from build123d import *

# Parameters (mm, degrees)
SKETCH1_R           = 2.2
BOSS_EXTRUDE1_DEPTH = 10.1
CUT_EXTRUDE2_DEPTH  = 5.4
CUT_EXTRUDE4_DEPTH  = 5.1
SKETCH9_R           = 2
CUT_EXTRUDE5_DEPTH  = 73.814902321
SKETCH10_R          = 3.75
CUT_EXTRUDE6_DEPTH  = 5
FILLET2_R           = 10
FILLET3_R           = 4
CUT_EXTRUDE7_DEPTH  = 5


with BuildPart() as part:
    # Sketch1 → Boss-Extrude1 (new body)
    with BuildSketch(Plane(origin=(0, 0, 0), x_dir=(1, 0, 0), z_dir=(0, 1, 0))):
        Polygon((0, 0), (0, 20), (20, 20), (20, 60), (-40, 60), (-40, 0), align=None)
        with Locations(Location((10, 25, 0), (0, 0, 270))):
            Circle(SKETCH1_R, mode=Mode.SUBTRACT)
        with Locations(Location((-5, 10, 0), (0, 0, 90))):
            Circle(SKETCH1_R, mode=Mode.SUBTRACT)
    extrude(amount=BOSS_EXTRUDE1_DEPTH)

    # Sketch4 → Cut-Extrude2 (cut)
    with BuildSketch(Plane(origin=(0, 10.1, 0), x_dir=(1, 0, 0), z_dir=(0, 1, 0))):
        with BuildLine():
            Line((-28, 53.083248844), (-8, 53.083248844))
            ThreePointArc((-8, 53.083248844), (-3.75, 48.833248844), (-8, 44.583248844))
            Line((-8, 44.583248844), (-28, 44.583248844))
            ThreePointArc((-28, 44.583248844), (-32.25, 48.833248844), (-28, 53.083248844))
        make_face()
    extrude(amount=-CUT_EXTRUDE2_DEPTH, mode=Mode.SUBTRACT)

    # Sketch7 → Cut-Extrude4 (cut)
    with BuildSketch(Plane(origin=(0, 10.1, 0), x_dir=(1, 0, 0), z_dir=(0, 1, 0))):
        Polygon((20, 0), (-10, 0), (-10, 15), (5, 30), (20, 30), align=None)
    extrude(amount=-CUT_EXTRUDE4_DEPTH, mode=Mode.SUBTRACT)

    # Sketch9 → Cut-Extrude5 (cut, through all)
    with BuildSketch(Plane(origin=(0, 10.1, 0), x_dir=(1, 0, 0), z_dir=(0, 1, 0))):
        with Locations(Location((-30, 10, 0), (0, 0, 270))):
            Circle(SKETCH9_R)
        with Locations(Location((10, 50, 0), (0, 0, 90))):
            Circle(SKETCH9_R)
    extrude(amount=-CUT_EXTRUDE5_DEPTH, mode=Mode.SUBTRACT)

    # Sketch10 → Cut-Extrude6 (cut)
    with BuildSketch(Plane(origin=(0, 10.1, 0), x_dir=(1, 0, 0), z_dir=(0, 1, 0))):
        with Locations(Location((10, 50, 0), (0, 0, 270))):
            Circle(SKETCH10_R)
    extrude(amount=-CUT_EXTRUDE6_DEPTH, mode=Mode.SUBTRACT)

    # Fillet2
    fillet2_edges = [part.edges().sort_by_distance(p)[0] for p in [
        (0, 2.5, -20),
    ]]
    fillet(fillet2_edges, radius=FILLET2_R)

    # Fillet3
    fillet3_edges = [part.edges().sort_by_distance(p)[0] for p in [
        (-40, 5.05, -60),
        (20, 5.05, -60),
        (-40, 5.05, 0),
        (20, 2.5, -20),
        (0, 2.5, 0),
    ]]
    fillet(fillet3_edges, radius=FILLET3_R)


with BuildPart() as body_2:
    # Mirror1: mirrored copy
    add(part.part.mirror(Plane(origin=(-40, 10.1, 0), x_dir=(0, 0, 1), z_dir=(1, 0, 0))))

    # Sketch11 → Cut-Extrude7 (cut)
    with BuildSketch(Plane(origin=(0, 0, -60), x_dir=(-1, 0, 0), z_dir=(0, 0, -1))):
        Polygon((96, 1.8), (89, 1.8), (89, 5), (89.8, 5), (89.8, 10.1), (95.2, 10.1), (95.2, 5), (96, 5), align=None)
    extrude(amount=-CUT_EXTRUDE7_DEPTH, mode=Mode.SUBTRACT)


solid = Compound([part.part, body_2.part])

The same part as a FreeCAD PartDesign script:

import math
import FreeCAD as App
import Part
import Sketcher
from FreeCAD import Vector
Q = App.Units.Quantity


def edges_at(feature, points):
    """Names of the edges that pass closest to the given points."""
    edges = feature.Shape.Edges
    near = lambda p: min(range(len(edges)), key=lambda i: edges[i].distToShape(Part.Vertex(*p))[0])
    return sorted({f"Edge{near(p) + 1}" for p in points})


def add_polygon(sketch, points):
    """Adds a closed chain of lines whose ends are joined by coincident constraints."""
    first, n = sketch.GeometryCount, len(points)
    for a, b in zip(points, points[1:] + points[:1]):
        sketch.addGeometry(Part.LineSegment(App.Vector(*a, 0), App.Vector(*b, 0)), False)
    for i in range(n):
        sketch.addConstraint(Sketcher.Constraint("Coincident", first + i, 2, first + (i + 1) % n, 1))

doc = App.newDocument("Part")
params = doc.addObject("Spreadsheet::Sheet", "Params")
for row, (alias, value) in enumerate([
    ("sketch1_diameter", "4.4 mm"),
    ("sketch1_width", "20 mm"),
    ("sketch1_width2", "60 mm"),
    ("pad1_length", "10.1 mm"),
    ("sketch2_width", "20 mm"),
    ("sketch2_radius", "4.25 mm"),
    ("pocket1_length", "5.4 mm"),
    ("sketch3_width", "30 mm"),
    ("sketch3_width2", "15 mm"),
    ("pocket2_length", "5.1 mm"),
    ("sketch4_diameter", "4 mm"),
    ("sketch5_diameter", "7.5 mm"),
    ("pocket4_length", "5 mm"),
    ("fillet_radius", "10 mm"),
    ("fillet2_radius", "4 mm"),
    ("sketch6_width", "7 mm"),
    ("sketch6_width2", "0.8 mm"),
    ("sketch6_height", "3.2 mm"),
    ("sketch6_height2", "5.1 mm"),
    ("pocket5_length", "5 mm"),
], start=1):
    params.set(f"A{row}", alias)
    params.set(f"B{row}", "=" + value)
    params.setAlias(f"B{row}", alias)

body = doc.addObject("PartDesign::Body", "Body")

# Sketch on XZ plane
sketch1 = body.newObject("Sketcher::SketchObject", "Sketch")
sketch1.AttachmentSupport = (doc.getObject("XZ_Plane"), [""])
sketch1.MapMode = "FlatFace"
add_polygon(sketch1, [(0, 0), (0, -20), (20, -20), (20, -60), (-40, -60), (-40, 0)])  # lines 0-5
sketch1.addGeometry(Part.Circle(Vector(-5, -10, 0), Vector(0, 0, 1), 2.2), False)  # 6
sketch1.addGeometry(Part.Circle(Vector(10, -25, 0), Vector(0, 0, 1), 2.2), False)  # 7
sketch1.addConstraint([
    Sketcher.Constraint("Vertical", 0),
    Sketcher.Constraint("Horizontal", 1),
    Sketcher.Constraint("Vertical", 2),
    Sketcher.Constraint("Horizontal", 3),
    Sketcher.Constraint("Vertical", 4),
    Sketcher.Constraint("Horizontal", 5),
    Sketcher.Constraint("Coincident", 5, 2, -1, 1),
    Sketcher.Constraint("Equal", 6, 7),
    Sketcher.Constraint("Equal", 1, 0),
    Sketcher.Constraint("Equal", 5, 2),
    Sketcher.Constraint("Diameter", 6, Q("4.4 mm")),
    Sketcher.Constraint("DistanceX", 1, 1, 1, 2, Q("20 mm")),
    Sketcher.Constraint("DistanceX", 3, 2, 3, 1, Q("60 mm")),
    Sketcher.Constraint("DistanceX", 6, 3, -1, 1, Q("5 mm")),
    Sketcher.Constraint("DistanceY", 6, 3, -1, 1, Q("10 mm")),
    Sketcher.Constraint("DistanceX", -1, 1, 7, 3, Q("10 mm")),
    Sketcher.Constraint("DistanceY", 7, 3, -1, 1, Q("25 mm")),
])
sketch1.setExpression("Constraints[16]", "Params.sketch1_diameter")
sketch1.setExpression("Constraints[17]", "Params.sketch1_width")
sketch1.setExpression("Constraints[18]", "Params.sketch1_width2")
pad1 = body.newObject("PartDesign::Pad", "Pad")
pad1.Profile = sketch1
pad1.setExpression("Length", "Params.pad1_length")
pad1.Reversed = True

# Sketch on XZ plane
sketch2 = body.newObject("Sketcher::SketchObject", "Sketch001")
sketch2.AttachmentSupport = (doc.getObject("XZ_Plane"), [""])
sketch2.MapMode = "FlatFace"
sketch2.AttachmentOffset = App.Placement(Vector(0, 0, -10.1), App.Rotation())
sketch2.addGeometry([
    Part.LineSegment(Vector(-8, -53.1, 0), Vector(-28, -53.1, 0)),
    Part.ArcOfCircle(Part.Circle(Vector(-28, -48.8, 0), Vector(0, 0, 1), 4.2), math.radians(90), math.radians(270)),
    Part.LineSegment(Vector(-28, -44.6, 0), Vector(-8, -44.6, 0)),
    Part.ArcOfCircle(Part.Circle(Vector(-8, -48.8, 0), Vector(0, 0, 1), 4.2), math.radians(-90), math.radians(90)),
], False)
sketch2.addConstraint([
    Sketcher.Constraint("Tangent", 0, 2, 1, 2),
    Sketcher.Constraint("Tangent", 1, 1, 2, 1),
    Sketcher.Constraint("Tangent", 2, 2, 3, 2),
    Sketcher.Constraint("Tangent", 3, 1, 0, 1),
    Sketcher.Constraint("Horizontal", 0),
    Sketcher.Constraint("Horizontal", 2),
    Sketcher.Constraint("DistanceX", 0, 2, 0, 1, Q("20 mm")),
    Sketcher.Constraint("Radius", 1, Q("4.25 mm")),
    Sketcher.Constraint("DistanceX", 1, 3, -1, 1, Q("28 mm")),
    Sketcher.Constraint("DistanceY", 1, 3, -1, 1, Q("48.833249 mm")),
])
sketch2.setExpression("Constraints[6]", "Params.sketch2_width")
sketch2.setExpression("Constraints[7]", "Params.sketch2_radius")
pocket1 = body.newObject("PartDesign::Pocket", "Pocket")
pocket1.Profile = sketch2
pocket1.setExpression("Length", "Params.pocket1_length")
pocket1.Reversed = True

# Sketch on XZ plane
sketch3 = body.newObject("Sketcher::SketchObject", "Sketch002")
sketch3.AttachmentSupport = (doc.getObject("XZ_Plane"), [""])
sketch3.MapMode = "FlatFace"
sketch3.AttachmentOffset = App.Placement(Vector(0, 0, -10.1), App.Rotation())
add_polygon(sketch3, [(-10, 0), (20, 0), (20, -30), (5, -30), (-10, -15)])  # lines 0-4
sketch3.addConstraint([
    Sketcher.Constraint("Horizontal", 0),
    Sketcher.Constraint("Vertical", 1),
    Sketcher.Constraint("Horizontal", 2),
    Sketcher.Constraint("Vertical", 4),
    Sketcher.Constraint("PointOnObject", 0, 2, -1),
    Sketcher.Constraint("Equal", 0, 1),
    Sketcher.Constraint("Equal", 2, 4),
    Sketcher.Constraint("DistanceX", 0, 1, 0, 2, Q("30 mm")),
    Sketcher.Constraint("DistanceX", 2, 2, 2, 1, Q("15 mm")),
    Sketcher.Constraint("DistanceX", -1, 1, 0, 2, Q("20 mm")),
])
sketch3.setExpression("Constraints[12]", "Params.sketch3_width")
sketch3.setExpression("Constraints[13]", "Params.sketch3_width2")
pocket2 = body.newObject("PartDesign::Pocket", "Pocket001")
pocket2.Profile = sketch3
pocket2.setExpression("Length", "Params.pocket2_length")
pocket2.Reversed = True

# Sketch on XZ plane
sketch4 = body.newObject("Sketcher::SketchObject", "Sketch003")
sketch4.AttachmentSupport = (doc.getObject("XZ_Plane"), [""])
sketch4.MapMode = "FlatFace"
sketch4.AttachmentOffset = App.Placement(Vector(0, 0, -10.1), App.Rotation())
sketch4.addGeometry([
    Part.Circle(Vector(-30, -10, 0), Vector(0, 0, 1), 2),
    Part.Circle(Vector(10, -50, 0), Vector(0, 0, 1), 2),
], False)
sketch4.addConstraint([
    Sketcher.Constraint("Equal", 0, 1),
    Sketcher.Constraint("Diameter", 0, Q("4 mm")),
    Sketcher.Constraint("DistanceX", 0, 3, -1, 1, Q("30 mm")),
    Sketcher.Constraint("DistanceY", 0, 3, -1, 1, Q("10 mm")),
    Sketcher.Constraint("DistanceX", -1, 1, 1, 3, Q("10 mm")),
    Sketcher.Constraint("DistanceY", 1, 3, -1, 1, Q("50 mm")),
])
sketch4.setExpression("Constraints[1]", "Params.sketch4_diameter")
pocket3 = body.newObject("PartDesign::Pocket", "Pocket002")
pocket3.Profile = sketch4
pocket3.Type = "ThroughAll"
pocket3.Reversed = True

# Sketch on XZ plane
sketch5 = body.newObject("Sketcher::SketchObject", "Sketch004")
sketch5.AttachmentSupport = (doc.getObject("XZ_Plane"), [""])
sketch5.MapMode = "FlatFace"
sketch5.AttachmentOffset = App.Placement(Vector(0, 0, -10.1), App.Rotation())
sketch5.addGeometry(Part.Circle(Vector(10, -50, 0), Vector(0, 0, 1), 3.8), False)
sketch5.addConstraint([
    Sketcher.Constraint("Diameter", 0, Q("7.5 mm")),
    Sketcher.Constraint("DistanceX", -1, 1, 0, 3, Q("10 mm")),
    Sketcher.Constraint("DistanceY", 0, 3, -1, 1, Q("50 mm")),
])
sketch5.setExpression("Constraints[0]", "Params.sketch5_diameter")
pocket4 = body.newObject("PartDesign::Pocket", "Pocket003")
pocket4.Profile = sketch5
pocket4.setExpression("Length", "Params.pocket4_length")
pocket4.Reversed = True
doc.recompute()

fillet = body.newObject("PartDesign::Fillet", "Fillet")
fillet.Base = (pocket4, edges_at(pocket4, [(0, 2.5, -20)]))
fillet.setExpression("Radius", "Params.fillet_radius")
doc.recompute()

fillet2 = body.newObject("PartDesign::Fillet", "Fillet001")
fillet2.Base = (fillet, edges_at(fillet, [
    (-40, 5.05, -60),
    (20, 5.05, -60),
    (-40, 5.05, 0),
    (20, 2.5, -20),
    (0, 2.5, 0),
]))
fillet2.setExpression("Radius", "Params.fillet2_radius")
body2 = doc.addObject("PartDesign::Body", "Body001")
doc.recompute()

mirroring = doc.addObject("Part::Mirroring", "Mirroring")
mirroring.Source = body
mirroring.Base = Vector(-40, 10.1, 0)
mirroring.Normal = Vector(1, 0, 0)
body2.BaseFeature = mirroring
doc.recompute()

# Sketch on XY plane
sketch6 = body2.newObject("Sketcher::SketchObject", "Sketch005")
sketch6.AttachmentSupport = (doc.getObject("XY_Plane001"), [""])
sketch6.MapMode = "FlatFace"
sketch6.AttachmentOffset = App.Placement(Vector(0, 0, -60), App.Rotation())
add_polygon(sketch6, [(-89, 1.8), (-96, 1.8), (-96, 5), (-95.2, 5), (-95.2, 10.1), (-89.8, 10.1), (-89.8, 5), (-89, 5)])  # lines 0-7
sketch6.addConstraint([
    Sketcher.Constraint("Horizontal", 0),
    Sketcher.Constraint("Vertical", 1),
    Sketcher.Constraint("Horizontal", 2),
    Sketcher.Constraint("Vertical", 3),
    Sketcher.Constraint("Horizontal", 4),
    Sketcher.Constraint("Vertical", 5),
    Sketcher.Constraint("Horizontal", 6),
    Sketcher.Constraint("Vertical", 7),
    Sketcher.Constraint("Horizontal", 2, 2, 5, 2),
    Sketcher.Constraint("Equal", 2, 6),
    Sketcher.Constraint("DistanceX", 0, 2, 0, 1, Q("7 mm")),
    Sketcher.Constraint("DistanceX", 2, 1, 2, 2, Q("0.8 mm")),
    Sketcher.Constraint("DistanceY", 1, 1, 1, 2, Q("3.2 mm")),
    Sketcher.Constraint("DistanceY", 3, 1, 3, 2, Q("5.1 mm")),
    Sketcher.Constraint("DistanceX", 0, 2, -1, 1, Q("96 mm")),
    Sketcher.Constraint("DistanceY", -1, 1, 1, 2, Q("5 mm")),
])
sketch6.setExpression("Constraints[18]", "Params.sketch6_width")
sketch6.setExpression("Constraints[19]", "Params.sketch6_width2")
sketch6.setExpression("Constraints[20]", "Params.sketch6_height")
sketch6.setExpression("Constraints[21]", "Params.sketch6_height2")
pocket5 = body2.newObject("PartDesign::Pocket", "Pocket004")
pocket5.Profile = sketch6
pocket5.setExpression("Length", "Params.pocket5_length")
pocket5.Reversed = True
mirroring.Visibility = False

doc.recompute()
